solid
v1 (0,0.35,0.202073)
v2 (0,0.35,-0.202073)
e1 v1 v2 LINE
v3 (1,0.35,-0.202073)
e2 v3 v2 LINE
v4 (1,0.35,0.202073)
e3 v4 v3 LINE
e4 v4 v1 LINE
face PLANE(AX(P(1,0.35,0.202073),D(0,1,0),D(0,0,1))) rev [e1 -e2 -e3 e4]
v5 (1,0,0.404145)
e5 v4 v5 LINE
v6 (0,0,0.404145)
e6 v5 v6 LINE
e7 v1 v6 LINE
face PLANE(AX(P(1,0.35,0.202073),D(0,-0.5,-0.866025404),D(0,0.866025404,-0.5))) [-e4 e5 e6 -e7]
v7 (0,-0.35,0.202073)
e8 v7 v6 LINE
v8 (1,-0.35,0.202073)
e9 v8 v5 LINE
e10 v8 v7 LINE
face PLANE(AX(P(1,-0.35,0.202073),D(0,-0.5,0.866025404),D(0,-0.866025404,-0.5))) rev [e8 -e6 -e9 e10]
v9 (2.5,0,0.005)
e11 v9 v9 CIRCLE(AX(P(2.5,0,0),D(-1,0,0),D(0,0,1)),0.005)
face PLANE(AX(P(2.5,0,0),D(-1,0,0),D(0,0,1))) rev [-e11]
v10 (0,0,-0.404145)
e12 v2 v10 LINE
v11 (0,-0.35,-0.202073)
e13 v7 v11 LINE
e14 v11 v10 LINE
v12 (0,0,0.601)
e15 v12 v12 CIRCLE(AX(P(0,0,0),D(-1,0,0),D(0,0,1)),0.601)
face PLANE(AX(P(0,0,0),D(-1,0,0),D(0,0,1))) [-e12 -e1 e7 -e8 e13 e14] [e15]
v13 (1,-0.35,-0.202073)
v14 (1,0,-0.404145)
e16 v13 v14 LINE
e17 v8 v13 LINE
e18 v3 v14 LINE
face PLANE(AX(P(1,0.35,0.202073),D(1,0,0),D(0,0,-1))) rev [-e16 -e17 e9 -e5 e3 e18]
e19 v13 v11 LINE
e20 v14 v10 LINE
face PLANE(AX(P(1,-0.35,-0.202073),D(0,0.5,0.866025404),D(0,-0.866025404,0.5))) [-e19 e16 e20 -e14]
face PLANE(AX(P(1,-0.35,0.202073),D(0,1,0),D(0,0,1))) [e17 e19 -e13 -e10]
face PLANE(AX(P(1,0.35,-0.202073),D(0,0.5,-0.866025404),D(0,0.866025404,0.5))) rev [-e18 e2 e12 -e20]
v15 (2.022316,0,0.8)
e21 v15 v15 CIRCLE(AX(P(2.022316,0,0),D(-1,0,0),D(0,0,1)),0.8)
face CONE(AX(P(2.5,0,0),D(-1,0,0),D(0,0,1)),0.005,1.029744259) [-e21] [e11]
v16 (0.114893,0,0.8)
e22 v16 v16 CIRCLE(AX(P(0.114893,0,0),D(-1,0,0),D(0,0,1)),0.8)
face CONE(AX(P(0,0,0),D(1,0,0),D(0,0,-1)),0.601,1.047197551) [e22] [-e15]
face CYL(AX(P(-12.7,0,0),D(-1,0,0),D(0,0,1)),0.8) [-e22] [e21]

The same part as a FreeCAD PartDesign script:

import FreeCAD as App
import Part
import Sketcher

V = App.Vector
Q = App.Units.Quantity


def add_polygon(sketch, points):
    """Adds a closed chain of lines whose ends are joined by coincident constraints."""
    first, n = sketch.GeometryCount, len(points)
    for a, b in zip(points, points[1:] + points[:1]):
        sketch.addGeometry(Part.LineSegment(App.Vector(*a, 0), App.Vector(*b, 0)), False)
    for i in range(n):
        sketch.addConstraint(Sketcher.Constraint("Coincident", first + i, 2, first + (i + 1) % n, 1))

doc = App.newDocument("Part")
body = doc.addObject("PartDesign::Body", "Body")

# Sketch on XY plane
sketch1 = body.newObject("Sketcher::SketchObject", "Sketch")
sketch1.AttachmentSupport = (doc.getObject("XY_Plane"), [""])
sketch1.MapMode = "FlatFace"
add_polygon(sketch1, [(0, 0.601), (0, 0), (2.5, 0), (2.5, 0.005), (2.022, 0.8), (0.115, 0.8)])  # lines 0-5
sketch1.addConstraint(Sketcher.Constraint("Vertical", 0))
sketch1.addConstraint(Sketcher.Constraint("Horizontal", 1))
sketch1.addConstraint(Sketcher.Constraint("Vertical", 2))
sketch1.addConstraint(Sketcher.Constraint("Horizontal", 4))
sketch1.addConstraint(Sketcher.Constraint("Coincident", 0, 2, -1, 1))
sketch1.addConstraint(Sketcher.Constraint("Angle", 3, Q("121 deg")))
sketch1.addConstraint(Sketcher.Constraint("Angle", 5, Q("-120 deg")))
sketch1.addConstraint(Sketcher.Constraint("DistanceX", 1, 1, 1, 2, Q("2.5 mm")))
sketch1.addConstraint(Sketcher.Constraint("DistanceY", -1, 1, 3, 2, Q("0.8 mm")))
sketch1.addConstraint(Sketcher.Constraint("DistanceY", 0, 2, 0, 1, Q("0.601 mm")))
sketch1.addConstraint(Sketcher.Constraint("DistanceY", 2, 1, 2, 2, Q("0.005 mm")))
revolution = body.newObject("PartDesign::Revolution", "Revolution")
revolution.Profile = sketch1
revolution.ReferenceAxis = (sketch1, ["H_Axis"])
revolution.Angle = 360

# Sketch on YZ plane
sketch2 = body.newObject("Sketcher::SketchObject", "Sketch001")
sketch2.AttachmentSupport = (doc.getObject("YZ_Plane"), [""])
sketch2.MapMode = "FlatFace"
add_polygon(sketch2, [(0.35, 0.2), (0.35, -0.2), (0, -0.4), (-0.35, -0.2), (-0.35, 0.2), (0, 0.4)])  # lines 0-5
sketch2.addConstraint(Sketcher.Constraint("Vertical", 0))
sketch2.addConstraint(Sketcher.Constraint("Vertical", 3))
sketch2.addConstraint(Sketcher.Constraint("Symmetric", 0, 2, 3, 2, -1, 1))
sketch2.addConstraint(Sketcher.Constraint("Symmetric", 1, 2, 4, 2, -1, 1))
sketch2.addConstraint(Sketcher.Constraint("PointOnObject", 1, 2, -2))
sketch2.addConstraint(Sketcher.Constraint("Parallel", 2, 5))
sketch2.addConstraint(Sketcher.Constraint("Horizontal", 0, 2, 2, 2))
sketch2.addConstraint(Sketcher.Constraint("Angle", 1, Q("-150 deg")))
sketch2.addConstraint(Sketcher.Constraint("DistanceX", 2, 2, 0, 2, Q("0.7 mm")))
sketch2.addConstraint(Sketcher.Constraint("DistanceY", 0, 2, 0, 1, Q("0.404145 mm")))
pocket1 = body.newObject("PartDesign::Pocket", "Pocket")
pocket1.Profile = sketch2
pocket1.Length = 1
pocket1.Reversed = True

doc.recompute()
